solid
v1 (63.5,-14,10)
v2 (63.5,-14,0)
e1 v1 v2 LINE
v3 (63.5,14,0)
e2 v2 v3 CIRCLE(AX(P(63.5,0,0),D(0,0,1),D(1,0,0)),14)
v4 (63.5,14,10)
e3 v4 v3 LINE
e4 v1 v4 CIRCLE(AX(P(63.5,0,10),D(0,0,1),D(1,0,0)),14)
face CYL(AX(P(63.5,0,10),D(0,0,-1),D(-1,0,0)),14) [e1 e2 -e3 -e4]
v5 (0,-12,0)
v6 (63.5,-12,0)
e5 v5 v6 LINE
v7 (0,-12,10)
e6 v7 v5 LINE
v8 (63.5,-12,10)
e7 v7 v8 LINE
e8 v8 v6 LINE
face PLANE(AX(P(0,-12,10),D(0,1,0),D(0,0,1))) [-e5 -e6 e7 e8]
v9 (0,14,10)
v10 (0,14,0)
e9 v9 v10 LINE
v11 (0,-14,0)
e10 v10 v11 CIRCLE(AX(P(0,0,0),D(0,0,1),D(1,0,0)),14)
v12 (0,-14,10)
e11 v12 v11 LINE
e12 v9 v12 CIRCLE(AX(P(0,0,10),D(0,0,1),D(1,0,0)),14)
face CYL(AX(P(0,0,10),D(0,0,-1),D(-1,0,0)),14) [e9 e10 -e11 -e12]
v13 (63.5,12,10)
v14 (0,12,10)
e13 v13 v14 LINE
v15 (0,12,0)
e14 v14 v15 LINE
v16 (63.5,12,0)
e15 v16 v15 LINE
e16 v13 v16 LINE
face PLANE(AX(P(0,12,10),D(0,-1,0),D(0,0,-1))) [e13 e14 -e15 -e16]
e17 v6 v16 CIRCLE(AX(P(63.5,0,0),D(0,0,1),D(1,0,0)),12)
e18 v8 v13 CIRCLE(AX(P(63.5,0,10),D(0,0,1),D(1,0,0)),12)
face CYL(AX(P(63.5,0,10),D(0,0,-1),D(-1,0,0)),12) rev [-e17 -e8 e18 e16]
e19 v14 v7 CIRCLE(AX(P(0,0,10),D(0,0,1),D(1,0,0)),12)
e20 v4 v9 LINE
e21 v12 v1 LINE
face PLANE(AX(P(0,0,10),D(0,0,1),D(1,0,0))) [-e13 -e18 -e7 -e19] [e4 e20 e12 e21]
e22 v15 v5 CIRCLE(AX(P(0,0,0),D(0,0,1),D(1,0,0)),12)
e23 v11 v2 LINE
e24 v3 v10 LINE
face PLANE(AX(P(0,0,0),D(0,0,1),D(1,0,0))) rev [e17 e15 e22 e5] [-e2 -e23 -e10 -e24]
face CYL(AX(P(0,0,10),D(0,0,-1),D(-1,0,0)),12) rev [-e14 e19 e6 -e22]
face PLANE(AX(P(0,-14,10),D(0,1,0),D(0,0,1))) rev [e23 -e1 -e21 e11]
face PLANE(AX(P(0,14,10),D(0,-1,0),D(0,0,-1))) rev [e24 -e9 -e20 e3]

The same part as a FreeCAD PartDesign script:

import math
import FreeCAD as App
import Part
import Sketcher

V = App.Vector
Q = App.Units.Quantity

doc = App.newDocument("Part")
body = doc.addObject("PartDesign::Body", "Body")

# Sketch on XY plane
sketch1 = body.newObject("Sketcher::SketchObject", "Sketch")
sketch1.AttachmentSupport = (doc.getObject("XY_Plane"), [""])
sketch1.MapMode = "FlatFace"
sketch1.addGeometry([
    Part.LineSegment(V(64, 14, 0), V(0, 14, 0)),  # 0
    Part.ArcOfCircle(Part.Circle(V(0, 0, 0), V(0, 0, 1), 14), math.radians(90), math.radians(270)),  # 1
    Part.LineSegment(V(0, -14, 0), V(64, -14, 0)),  # 2
    Part.ArcOfCircle(Part.Circle(V(64, 0, 0), V(0, 0, 1), 14), math.radians(-90), math.radians(90)),  # 3
    Part.LineSegment(V(0, 12, 0), V(64, 12, 0)),  # 4
    Part.ArcOfCircle(Part.Circle(V(64, 0, 0), V(0, 0, 1), 12), math.radians(-90), math.radians(90)),  # 5
    Part.LineSegment(V(64, -12, 0), V(0, -12, 0)),  # 6
    Part.ArcOfCircle(Part.Circle(V(0, 0, 0), V(0, 0, 1), 12), math.radians(90), math.radians(270)),  # 7
], False)
sketch1.addConstraint([
    Sketcher.Constraint("Tangent", 0, 2, 1, 1),
    Sketcher.Constraint("Tangent", 1, 2, 2, 1),
    Sketcher.Constraint("Tangent", 2, 2, 3, 1),
    Sketcher.Constraint("Tangent", 3, 2, 0, 1),
    Sketcher.Constraint("Tangent", 4, 2, 5, 2),
    Sketcher.Constraint("Tangent", 5, 1, 6, 1),
    Sketcher.Constraint("Tangent", 6, 2, 7, 2),
    Sketcher.Constraint("Tangent", 7, 1, 4, 1),
    Sketcher.Constraint("Horizontal", 0),
    Sketcher.Constraint("Horizontal", 2),
    Sketcher.Constraint("Horizontal", 4),
    Sketcher.Constraint("Horizontal", 6),
    Sketcher.Constraint("Coincident", 1, 3, -1, 1),
    Sketcher.Constraint("Coincident", 7, 3, -1, 1),
    Sketcher.Constraint("Vertical", 5, 3, 2, 2),
    Sketcher.Constraint("Radius", 1, Q("14 mm")),
    Sketcher.Constraint("Radius", 5, Q("12 mm")),
    Sketcher.Constraint("DistanceX", 0, 2, 0, 1, Q("63.5 mm")),
])
pad1 = body.newObject("PartDesign::Pad", "Pad")
pad1.Profile = sketch1
pad1.Length = 10

doc.recompute()
